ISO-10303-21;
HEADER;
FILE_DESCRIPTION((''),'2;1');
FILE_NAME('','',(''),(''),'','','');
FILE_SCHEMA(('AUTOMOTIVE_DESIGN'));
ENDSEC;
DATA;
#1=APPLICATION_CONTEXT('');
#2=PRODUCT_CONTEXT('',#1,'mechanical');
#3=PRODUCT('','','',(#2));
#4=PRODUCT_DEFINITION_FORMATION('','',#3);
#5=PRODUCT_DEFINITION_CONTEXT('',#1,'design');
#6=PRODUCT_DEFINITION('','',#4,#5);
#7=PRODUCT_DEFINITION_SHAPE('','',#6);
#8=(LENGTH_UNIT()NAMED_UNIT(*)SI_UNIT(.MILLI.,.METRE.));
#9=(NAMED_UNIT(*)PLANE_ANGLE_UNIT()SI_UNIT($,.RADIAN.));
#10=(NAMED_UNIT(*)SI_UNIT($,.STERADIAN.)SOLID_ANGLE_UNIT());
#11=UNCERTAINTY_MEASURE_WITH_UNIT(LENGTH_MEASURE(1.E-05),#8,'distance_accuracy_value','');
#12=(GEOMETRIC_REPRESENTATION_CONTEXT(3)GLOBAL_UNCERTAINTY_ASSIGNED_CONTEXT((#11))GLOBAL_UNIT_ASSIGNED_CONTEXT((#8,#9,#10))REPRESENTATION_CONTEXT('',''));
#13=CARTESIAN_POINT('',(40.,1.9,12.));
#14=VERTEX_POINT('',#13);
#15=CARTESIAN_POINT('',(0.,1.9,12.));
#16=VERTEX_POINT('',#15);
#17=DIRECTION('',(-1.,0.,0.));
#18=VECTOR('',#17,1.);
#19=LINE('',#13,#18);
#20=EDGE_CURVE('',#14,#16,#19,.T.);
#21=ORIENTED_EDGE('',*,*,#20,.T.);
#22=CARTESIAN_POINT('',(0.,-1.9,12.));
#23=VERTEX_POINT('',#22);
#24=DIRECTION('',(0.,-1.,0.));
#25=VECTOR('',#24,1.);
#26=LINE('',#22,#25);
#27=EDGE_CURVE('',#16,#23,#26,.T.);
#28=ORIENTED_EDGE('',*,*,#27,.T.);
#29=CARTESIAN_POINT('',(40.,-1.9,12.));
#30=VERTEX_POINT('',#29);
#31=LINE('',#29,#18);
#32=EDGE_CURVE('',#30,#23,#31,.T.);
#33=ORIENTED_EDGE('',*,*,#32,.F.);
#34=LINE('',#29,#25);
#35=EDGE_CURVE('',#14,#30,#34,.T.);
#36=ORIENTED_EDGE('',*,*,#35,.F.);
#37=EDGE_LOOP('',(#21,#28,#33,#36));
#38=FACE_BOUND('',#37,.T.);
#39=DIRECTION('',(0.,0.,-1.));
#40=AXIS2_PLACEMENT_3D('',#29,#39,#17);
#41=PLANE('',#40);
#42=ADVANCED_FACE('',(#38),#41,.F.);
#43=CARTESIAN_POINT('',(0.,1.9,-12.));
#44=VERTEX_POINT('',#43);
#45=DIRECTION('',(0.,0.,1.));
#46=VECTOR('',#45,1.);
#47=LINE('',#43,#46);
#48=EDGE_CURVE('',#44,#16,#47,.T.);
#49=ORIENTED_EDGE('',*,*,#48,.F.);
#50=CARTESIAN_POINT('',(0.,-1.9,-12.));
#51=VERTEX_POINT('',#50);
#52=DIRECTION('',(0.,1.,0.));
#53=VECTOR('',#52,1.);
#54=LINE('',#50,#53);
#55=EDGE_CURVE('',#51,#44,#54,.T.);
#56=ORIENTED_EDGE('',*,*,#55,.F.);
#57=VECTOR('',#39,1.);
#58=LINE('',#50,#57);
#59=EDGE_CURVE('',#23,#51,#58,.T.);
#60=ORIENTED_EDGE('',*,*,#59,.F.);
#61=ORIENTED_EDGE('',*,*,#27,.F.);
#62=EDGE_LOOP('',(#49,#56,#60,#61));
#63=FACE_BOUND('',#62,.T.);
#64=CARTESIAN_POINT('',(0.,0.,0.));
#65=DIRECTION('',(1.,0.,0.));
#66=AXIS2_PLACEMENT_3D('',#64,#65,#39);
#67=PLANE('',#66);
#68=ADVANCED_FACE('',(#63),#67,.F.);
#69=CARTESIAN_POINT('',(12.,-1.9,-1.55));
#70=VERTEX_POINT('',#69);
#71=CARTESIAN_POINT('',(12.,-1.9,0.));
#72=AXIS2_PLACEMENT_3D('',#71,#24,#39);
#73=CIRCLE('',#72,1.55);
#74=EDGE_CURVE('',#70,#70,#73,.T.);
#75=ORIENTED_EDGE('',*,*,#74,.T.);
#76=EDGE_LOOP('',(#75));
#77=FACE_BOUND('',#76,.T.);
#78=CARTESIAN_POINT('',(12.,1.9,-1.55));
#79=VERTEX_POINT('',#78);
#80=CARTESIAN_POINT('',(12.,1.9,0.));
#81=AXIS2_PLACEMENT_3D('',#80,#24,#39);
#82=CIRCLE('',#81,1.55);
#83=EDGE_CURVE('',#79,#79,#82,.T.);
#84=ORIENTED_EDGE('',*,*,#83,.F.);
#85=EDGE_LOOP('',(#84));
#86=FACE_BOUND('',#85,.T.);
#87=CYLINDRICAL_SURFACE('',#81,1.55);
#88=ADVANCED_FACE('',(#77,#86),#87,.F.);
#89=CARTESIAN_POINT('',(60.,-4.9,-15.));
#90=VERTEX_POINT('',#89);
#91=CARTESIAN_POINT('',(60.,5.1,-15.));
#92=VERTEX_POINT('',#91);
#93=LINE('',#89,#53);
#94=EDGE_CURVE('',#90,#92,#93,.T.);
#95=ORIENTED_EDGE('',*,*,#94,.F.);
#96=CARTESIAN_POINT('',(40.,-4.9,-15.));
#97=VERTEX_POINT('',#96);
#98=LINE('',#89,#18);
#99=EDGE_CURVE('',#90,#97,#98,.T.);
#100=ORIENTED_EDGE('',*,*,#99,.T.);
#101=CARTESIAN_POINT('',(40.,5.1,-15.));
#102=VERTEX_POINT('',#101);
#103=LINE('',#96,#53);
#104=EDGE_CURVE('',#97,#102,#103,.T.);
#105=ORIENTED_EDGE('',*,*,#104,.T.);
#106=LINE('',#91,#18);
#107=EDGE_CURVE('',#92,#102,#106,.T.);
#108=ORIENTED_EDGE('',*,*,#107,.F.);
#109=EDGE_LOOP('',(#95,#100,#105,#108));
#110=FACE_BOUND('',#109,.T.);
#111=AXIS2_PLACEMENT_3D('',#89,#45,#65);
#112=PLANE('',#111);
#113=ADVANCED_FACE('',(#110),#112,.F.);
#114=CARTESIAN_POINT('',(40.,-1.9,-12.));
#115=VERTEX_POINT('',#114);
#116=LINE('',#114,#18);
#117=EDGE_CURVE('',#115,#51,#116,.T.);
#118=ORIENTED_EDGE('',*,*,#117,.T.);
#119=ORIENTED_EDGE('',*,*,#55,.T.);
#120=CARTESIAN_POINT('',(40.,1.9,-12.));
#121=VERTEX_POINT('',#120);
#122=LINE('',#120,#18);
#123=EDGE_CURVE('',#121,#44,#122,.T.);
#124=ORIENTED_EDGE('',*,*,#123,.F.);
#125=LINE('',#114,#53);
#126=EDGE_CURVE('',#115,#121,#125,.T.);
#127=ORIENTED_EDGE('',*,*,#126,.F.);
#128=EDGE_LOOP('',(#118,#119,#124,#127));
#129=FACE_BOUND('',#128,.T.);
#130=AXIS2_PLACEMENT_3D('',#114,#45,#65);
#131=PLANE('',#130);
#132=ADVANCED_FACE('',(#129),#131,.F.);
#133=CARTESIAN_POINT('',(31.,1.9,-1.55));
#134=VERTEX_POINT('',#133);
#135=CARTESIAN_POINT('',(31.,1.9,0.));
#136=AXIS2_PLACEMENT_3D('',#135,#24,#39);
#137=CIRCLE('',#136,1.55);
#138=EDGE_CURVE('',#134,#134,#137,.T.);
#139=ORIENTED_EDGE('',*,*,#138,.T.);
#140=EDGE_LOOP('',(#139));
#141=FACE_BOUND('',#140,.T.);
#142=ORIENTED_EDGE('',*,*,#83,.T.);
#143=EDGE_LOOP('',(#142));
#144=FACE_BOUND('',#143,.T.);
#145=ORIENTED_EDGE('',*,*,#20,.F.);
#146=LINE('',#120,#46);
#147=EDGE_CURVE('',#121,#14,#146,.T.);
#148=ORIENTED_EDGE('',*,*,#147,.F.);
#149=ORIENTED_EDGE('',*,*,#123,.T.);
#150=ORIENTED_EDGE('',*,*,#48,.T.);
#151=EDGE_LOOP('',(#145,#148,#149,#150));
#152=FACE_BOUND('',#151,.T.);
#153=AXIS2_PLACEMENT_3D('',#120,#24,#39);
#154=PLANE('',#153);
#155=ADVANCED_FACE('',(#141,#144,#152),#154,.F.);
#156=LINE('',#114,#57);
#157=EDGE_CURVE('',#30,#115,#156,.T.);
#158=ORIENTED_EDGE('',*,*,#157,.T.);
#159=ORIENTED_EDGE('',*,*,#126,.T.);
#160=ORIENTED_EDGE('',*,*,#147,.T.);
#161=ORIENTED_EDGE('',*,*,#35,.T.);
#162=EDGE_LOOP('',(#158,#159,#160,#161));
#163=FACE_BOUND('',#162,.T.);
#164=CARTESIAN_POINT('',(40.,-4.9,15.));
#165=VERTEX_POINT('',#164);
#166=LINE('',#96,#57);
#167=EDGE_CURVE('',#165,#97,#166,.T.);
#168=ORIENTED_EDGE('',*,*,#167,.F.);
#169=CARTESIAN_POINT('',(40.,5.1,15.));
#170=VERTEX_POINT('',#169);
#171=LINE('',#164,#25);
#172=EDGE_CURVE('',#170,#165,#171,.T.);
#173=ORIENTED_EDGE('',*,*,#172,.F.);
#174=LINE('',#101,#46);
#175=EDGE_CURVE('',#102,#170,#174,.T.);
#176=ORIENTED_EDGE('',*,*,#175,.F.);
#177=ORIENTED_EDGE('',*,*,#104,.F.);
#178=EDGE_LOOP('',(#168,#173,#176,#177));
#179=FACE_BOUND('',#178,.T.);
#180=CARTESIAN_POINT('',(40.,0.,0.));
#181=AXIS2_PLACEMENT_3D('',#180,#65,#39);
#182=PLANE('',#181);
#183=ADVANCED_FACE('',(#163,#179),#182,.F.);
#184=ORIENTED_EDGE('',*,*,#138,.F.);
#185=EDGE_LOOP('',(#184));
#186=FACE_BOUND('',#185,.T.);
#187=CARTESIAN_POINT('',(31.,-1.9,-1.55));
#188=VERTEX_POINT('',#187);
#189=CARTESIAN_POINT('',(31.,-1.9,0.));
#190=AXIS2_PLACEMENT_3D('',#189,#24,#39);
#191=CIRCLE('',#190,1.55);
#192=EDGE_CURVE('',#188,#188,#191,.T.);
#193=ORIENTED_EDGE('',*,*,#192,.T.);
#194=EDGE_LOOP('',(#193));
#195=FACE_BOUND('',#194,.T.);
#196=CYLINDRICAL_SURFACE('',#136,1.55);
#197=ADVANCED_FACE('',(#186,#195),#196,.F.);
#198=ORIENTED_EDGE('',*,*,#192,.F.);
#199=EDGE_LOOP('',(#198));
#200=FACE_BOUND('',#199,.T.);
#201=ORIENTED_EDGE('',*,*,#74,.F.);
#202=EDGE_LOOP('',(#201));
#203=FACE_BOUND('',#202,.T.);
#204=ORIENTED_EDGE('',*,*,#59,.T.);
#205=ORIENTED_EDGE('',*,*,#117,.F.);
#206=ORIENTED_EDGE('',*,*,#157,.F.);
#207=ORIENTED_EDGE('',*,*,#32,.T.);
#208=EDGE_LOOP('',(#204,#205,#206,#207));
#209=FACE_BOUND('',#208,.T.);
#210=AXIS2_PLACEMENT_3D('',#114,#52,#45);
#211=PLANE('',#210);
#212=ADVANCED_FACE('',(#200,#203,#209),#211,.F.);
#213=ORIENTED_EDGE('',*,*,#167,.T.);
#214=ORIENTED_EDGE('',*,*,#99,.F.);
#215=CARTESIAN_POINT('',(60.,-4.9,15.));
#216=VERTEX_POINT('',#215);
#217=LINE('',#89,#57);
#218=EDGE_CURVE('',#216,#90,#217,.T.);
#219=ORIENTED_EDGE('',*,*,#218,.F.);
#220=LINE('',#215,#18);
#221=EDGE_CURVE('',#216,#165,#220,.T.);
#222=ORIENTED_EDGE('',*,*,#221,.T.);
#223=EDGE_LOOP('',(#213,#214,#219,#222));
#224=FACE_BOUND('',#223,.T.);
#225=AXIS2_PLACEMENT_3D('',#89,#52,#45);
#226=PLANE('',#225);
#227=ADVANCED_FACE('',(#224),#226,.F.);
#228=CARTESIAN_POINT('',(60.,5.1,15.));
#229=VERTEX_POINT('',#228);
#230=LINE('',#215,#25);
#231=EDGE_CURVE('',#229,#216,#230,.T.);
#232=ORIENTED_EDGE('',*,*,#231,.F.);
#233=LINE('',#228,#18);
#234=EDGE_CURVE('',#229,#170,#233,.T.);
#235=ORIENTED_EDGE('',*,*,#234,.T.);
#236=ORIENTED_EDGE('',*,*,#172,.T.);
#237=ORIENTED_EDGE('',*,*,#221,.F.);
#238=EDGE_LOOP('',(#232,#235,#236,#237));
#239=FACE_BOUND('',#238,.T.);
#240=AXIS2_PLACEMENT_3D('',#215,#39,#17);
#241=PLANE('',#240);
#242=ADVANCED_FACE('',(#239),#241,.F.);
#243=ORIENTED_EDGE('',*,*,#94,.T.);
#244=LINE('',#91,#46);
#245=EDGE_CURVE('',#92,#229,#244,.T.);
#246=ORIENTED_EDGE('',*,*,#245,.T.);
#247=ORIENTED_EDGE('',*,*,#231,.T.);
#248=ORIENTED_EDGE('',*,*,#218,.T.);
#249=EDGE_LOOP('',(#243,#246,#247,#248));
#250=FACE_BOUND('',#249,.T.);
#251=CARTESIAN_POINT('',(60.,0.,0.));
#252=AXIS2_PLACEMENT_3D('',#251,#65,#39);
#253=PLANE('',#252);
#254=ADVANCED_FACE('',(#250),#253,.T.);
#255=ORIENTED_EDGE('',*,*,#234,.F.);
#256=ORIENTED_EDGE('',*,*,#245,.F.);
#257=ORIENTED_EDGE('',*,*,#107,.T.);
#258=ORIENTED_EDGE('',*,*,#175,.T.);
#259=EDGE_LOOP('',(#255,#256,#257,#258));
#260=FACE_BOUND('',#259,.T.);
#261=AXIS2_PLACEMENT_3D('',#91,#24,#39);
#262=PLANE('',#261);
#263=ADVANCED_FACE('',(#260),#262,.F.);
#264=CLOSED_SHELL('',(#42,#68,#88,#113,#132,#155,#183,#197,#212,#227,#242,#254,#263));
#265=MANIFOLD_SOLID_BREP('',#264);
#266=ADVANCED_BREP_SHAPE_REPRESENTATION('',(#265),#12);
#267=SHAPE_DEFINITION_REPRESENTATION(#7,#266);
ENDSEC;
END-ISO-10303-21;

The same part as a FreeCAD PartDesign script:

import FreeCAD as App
import Part
import Sketcher
from FreeCAD import Vector
Q = App.Units.Quantity


def add_polygon(sketch, points):
    """Adds a closed chain of lines whose ends are joined by coincident constraints."""
    first, n = sketch.GeometryCount, len(points)
    for a, b in zip(points, points[1:] + points[:1]):
        sketch.addGeometry(Part.LineSegment(App.Vector(*a, 0), App.Vector(*b, 0)), False)
    for i in range(n):
        sketch.addConstraint(Sketcher.Constraint("Coincident", first + i, 2, first + (i + 1) % n, 1))

doc = App.newDocument("Part")
body = doc.addObject("PartDesign::Body", "Body")

sketch1 = body.newObject("Sketcher::SketchObject", "Sketch")
sketch1.AttachmentSupport = (doc.getObject("YZ_Plane"), [""])
sketch1.MapMode = "FlatFace"
add_polygon(sketch1, [(1.9, 12), (-1.9, 12), (-1.9, -12), (1.9, -12)])
sketch1.addConstraint([
    Sketcher.Constraint("Horizontal", 0),
    Sketcher.Constraint("Vertical", 1),
    Sketcher.Constraint("Horizontal", 2),
    Sketcher.Constraint("Vertical", 3),
    Sketcher.Constraint("Symmetric", 0, 2, 2, 2, -1, 1),
    Sketcher.Constraint("DistanceY", 1, 2, 1, 1, Q("24 mm")),
    Sketcher.Constraint("DistanceX", 0, 2, 0, 1, Q("3.8 mm")),
])
pad1 = body.newObject("PartDesign::Pad", "Pad")
pad1.Profile = sketch1
pad1.Length = 40

sketch2 = body.newObject("Sketcher::SketchObject", "Sketch001")
sketch2.AttachmentSupport = (doc.getObject("XZ_Plane"), [""])
sketch2.MapMode = "FlatFace"
sketch2.AttachmentOffset = App.Placement(Vector(0, 0, 1.9), App.Rotation())
sketch2.addGeometry([
    Part.Circle(Vector(12, 0, 0), Vector(0, 0, 1), 1.6),
    Part.Circle(Vector(31, 0, 0), Vector(0, 0, 1), 1.6),
], False)
sketch2.addConstraint([
    Sketcher.Constraint("Equal", 0, 1),
    Sketcher.Constraint("PointOnObject", 0, 3, -1),
    Sketcher.Constraint("PointOnObject", 1, 3, -1),
    Sketcher.Constraint("Diameter", 0, Q("3.1 mm")),
    Sketcher.Constraint("DistanceX", -1, 1, 0, 3, Q("12 mm")),
    Sketcher.Constraint("DistanceX", -1, 1, 1, 3, Q("31 mm")),
])
pocket1 = body.newObject("PartDesign::Pocket", "Pocket")
pocket1.Profile = sketch2
pocket1.Type = "ThroughAll"

sketch3 = body.newObject("Sketcher::SketchObject", "Sketch002")
sketch3.AttachmentSupport = (doc.getObject("YZ_Plane"), [""])
sketch3.MapMode = "FlatFace"
sketch3.AttachmentOffset = App.Placement(Vector(0, 0, 40), App.Rotation())
add_polygon(sketch3, [(5, 15), (-5, 15), (-5, -15), (5, -15)])
sketch3.addConstraint([
    Sketcher.Constraint("Horizontal", 0),
    Sketcher.Constraint("Vertical", 1),
    Sketcher.Constraint("Horizontal", 2),
    Sketcher.Constraint("Vertical", 3),
    Sketcher.Constraint("DistanceX", 0, 2, 0, 1, Q("10 mm")),
    Sketcher.Constraint("DistanceY", 1, 2, 1, 1, Q("30 mm")),
    Sketcher.Constraint("DistanceY", -1, 1, 0, 2, Q("15 mm")),
    Sketcher.Constraint("DistanceX", 0, 2, -1, 1, Q("4.9 mm")),
])
pad2 = body.newObject("PartDesign::Pad", "Pad001")
pad2.Profile = sketch3
pad2.Length = 20

doc.recompute()
